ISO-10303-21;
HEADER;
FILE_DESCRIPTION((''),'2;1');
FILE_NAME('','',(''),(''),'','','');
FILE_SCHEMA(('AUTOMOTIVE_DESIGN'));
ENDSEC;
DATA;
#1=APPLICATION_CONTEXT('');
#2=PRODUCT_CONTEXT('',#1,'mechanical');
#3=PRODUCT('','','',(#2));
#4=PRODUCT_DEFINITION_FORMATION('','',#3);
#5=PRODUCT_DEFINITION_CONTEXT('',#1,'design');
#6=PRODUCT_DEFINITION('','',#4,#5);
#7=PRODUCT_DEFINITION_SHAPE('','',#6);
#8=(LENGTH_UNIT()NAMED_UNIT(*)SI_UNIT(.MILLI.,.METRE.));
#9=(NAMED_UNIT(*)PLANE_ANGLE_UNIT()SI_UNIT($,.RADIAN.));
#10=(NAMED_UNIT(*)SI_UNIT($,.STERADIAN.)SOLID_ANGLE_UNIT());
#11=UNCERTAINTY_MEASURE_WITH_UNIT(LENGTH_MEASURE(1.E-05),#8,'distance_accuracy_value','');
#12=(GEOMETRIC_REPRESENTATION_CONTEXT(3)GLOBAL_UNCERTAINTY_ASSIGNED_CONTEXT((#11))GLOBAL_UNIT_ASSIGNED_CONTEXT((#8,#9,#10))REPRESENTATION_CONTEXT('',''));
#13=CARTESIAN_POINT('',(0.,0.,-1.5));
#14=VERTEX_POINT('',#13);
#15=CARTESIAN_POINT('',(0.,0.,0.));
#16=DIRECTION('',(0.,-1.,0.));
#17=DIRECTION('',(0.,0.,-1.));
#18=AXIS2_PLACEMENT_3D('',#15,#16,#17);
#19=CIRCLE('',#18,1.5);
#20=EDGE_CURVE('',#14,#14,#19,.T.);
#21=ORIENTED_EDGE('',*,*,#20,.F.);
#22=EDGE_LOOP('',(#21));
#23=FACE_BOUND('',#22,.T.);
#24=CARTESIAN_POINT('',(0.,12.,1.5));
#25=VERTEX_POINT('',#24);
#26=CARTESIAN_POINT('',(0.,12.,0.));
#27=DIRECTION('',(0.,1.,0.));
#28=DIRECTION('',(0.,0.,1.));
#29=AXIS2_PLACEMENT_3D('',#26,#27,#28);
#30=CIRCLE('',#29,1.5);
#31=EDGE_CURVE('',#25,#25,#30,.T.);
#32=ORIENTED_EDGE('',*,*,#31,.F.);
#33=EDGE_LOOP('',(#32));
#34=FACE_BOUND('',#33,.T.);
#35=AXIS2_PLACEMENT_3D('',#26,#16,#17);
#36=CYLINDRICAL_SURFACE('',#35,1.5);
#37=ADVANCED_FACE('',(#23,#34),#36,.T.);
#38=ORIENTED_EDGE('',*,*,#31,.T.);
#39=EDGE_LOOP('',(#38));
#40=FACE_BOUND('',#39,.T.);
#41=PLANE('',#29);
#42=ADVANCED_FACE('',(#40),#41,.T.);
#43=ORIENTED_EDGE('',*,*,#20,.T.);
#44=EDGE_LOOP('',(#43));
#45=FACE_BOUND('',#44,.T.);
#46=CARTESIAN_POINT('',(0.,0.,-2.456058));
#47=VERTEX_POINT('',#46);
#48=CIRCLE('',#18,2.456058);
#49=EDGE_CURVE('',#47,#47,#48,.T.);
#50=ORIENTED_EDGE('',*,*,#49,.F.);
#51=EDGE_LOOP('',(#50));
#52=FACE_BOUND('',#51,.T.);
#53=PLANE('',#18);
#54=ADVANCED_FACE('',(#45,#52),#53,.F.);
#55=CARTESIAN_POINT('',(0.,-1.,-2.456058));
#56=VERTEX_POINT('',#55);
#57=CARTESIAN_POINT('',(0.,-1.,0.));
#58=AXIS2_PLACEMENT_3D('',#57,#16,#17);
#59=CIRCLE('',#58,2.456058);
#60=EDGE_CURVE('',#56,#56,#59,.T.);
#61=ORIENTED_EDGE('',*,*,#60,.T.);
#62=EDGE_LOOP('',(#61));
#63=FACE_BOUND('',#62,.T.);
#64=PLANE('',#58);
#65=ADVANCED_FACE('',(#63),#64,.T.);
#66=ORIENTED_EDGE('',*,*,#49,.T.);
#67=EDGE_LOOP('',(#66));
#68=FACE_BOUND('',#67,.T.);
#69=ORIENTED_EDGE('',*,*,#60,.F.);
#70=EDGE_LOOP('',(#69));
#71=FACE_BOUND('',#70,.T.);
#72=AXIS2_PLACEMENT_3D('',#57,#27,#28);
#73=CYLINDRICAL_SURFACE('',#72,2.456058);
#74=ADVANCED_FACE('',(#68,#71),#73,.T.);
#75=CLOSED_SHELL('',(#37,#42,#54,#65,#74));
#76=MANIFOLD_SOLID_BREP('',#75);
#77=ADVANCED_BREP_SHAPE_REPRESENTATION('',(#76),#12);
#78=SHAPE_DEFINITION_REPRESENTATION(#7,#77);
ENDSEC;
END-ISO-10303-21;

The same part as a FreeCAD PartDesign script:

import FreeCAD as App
import Part
import Sketcher

doc = App.newDocument("Part")
body = doc.addObject("PartDesign::Body", "Body")

sketch1 = body.newObject("Sketcher::SketchObject", "Sketch")
sketch1.AttachmentSupport = (doc.getObject("XZ_Plane"), [""])
sketch1.MapMode = "FlatFace"
sketch1.addGeometry(Part.Circle(App.Vector(0, 0, 0), App.Vector(0, 0, 1), 1.5), False)
sketch1.addConstraint([
    Sketcher.Constraint("Coincident", 0, 3, -1, 1),
    Sketcher.Constraint("Diameter", 0, 3.0),
])
pad1 = body.newObject("PartDesign::Pad", "Pad")
pad1.Profile = sketch1
pad1.Length = 12
pad1.Reversed = True

sketch2 = body.newObject("Sketcher::SketchObject", "Sketch001")
sketch2.AttachmentSupport = (doc.getObject("XZ_Plane"), [""])
sketch2.MapMode = "FlatFace"
sketch2.addGeometry(Part.Circle(App.Vector(0, 0, 0), App.Vector(0, 0, 1), 2.5), False)
sketch2.addConstraint([
    Sketcher.Constraint("Coincident", 0, 3, -1, 1),
    Sketcher.Constraint("Diameter", 0, 4.912116),
])
pad2 = body.newObject("PartDesign::Pad", "Pad001")
pad2.Profile = sketch2
pad2.Length = 1

doc.recompute()
